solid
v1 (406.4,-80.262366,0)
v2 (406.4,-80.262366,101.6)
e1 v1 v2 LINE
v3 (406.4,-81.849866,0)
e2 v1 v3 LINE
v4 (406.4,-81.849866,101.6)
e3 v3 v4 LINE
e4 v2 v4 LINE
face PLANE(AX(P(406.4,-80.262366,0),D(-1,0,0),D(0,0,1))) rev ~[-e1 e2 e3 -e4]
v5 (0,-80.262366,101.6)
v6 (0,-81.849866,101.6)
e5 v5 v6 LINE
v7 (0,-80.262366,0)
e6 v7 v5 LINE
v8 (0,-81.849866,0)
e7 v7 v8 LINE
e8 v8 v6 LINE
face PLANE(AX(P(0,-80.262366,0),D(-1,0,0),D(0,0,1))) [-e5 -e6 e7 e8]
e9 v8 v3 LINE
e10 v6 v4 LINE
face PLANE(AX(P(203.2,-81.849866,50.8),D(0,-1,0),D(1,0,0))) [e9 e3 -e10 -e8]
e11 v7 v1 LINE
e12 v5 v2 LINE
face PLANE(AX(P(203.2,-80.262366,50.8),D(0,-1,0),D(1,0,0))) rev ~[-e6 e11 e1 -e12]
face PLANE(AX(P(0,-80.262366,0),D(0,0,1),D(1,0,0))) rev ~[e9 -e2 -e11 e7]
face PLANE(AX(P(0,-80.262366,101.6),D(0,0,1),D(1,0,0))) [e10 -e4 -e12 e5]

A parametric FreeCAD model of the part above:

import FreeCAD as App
import Part
import Sketcher
from FreeCAD import Vector
Q = App.Units.Quantity

doc = App.newDocument("Part")
params = doc.addObject("Spreadsheet::Sheet", "Params")
for row, (alias, value) in enumerate([
    ("sketch1_width", "16 in"),
    ("sketch1_height", "4 in"),
    ("pad1_length", "0.0625 in"),
], start=1):
    params.set(f"A{row}", alias)
    params.set(f"B{row}", "=" + value)
    params.setAlias(f"B{row}", alias)

body = doc.addObject("PartDesign::Body", "Body")

# Sketch on XZ plane
sketch1 = body.newObject("Sketcher::SketchObject", "Sketch")
sketch1.AttachmentSupport = (doc.getObject("XZ_Plane"), [""])
sketch1.MapMode = "FlatFace"
sketch1.AttachmentOffset = App.Placement(Vector(0, 0, 80.262366), App.Rotation())
sketch1.addGeometry(Part.LineSegment(Vector(0, 102, 0), Vector(0, 0, 0)), False)
sketch1.addGeometry(Part.LineSegment(Vector(0, 0, 0), Vector(406, 0, 0)), False)
sketch1.addGeometry(Part.LineSegment(Vector(406, 0, 0), Vector(406, 102, 0)), False)
sketch1.addGeometry(Part.LineSegment(Vector(406, 102, 0), Vector(0, 102, 0)), False)
sketch1.addConstraint(Sketcher.Constraint("Coincident", 0, 2, 1, 1))
sketch1.addConstraint(Sketcher.Constraint("Coincident", 1, 2, 2, 1))
sketch1.addConstraint(Sketcher.Constraint("Coincident", 2, 2, 3, 1))
sketch1.addConstraint(Sketcher.Constraint("Coincident", 3, 2, 0, 1))
sketch1.addConstraint(Sketcher.Constraint("Vertical", 0))
sketch1.addConstraint(Sketcher.Constraint("Horizontal", 1))
sketch1.addConstraint(Sketcher.Constraint("Vertical", 2))
sketch1.addConstraint(Sketcher.Constraint("Horizontal", 3))
sketch1.addConstraint(Sketcher.Constraint("Coincident", 0, 2, -1, 1))
sketch1.addConstraint(Sketcher.Constraint("DistanceX", 1, 1, 1, 2, Q("16 in")))
sketch1.addConstraint(Sketcher.Constraint("DistanceY", 0, 2, 0, 1, Q("4 in")))
sketch1.setExpression("Constraints[9]", "Params.sketch1_width")
sketch1.setExpression("Constraints[10]", "Params.sketch1_height")
pad1 = body.newObject("PartDesign::Pad", "Pad")
pad1.Profile = sketch1
pad1.setExpression("Length", "Params.pad1_length")

doc.recompute()
